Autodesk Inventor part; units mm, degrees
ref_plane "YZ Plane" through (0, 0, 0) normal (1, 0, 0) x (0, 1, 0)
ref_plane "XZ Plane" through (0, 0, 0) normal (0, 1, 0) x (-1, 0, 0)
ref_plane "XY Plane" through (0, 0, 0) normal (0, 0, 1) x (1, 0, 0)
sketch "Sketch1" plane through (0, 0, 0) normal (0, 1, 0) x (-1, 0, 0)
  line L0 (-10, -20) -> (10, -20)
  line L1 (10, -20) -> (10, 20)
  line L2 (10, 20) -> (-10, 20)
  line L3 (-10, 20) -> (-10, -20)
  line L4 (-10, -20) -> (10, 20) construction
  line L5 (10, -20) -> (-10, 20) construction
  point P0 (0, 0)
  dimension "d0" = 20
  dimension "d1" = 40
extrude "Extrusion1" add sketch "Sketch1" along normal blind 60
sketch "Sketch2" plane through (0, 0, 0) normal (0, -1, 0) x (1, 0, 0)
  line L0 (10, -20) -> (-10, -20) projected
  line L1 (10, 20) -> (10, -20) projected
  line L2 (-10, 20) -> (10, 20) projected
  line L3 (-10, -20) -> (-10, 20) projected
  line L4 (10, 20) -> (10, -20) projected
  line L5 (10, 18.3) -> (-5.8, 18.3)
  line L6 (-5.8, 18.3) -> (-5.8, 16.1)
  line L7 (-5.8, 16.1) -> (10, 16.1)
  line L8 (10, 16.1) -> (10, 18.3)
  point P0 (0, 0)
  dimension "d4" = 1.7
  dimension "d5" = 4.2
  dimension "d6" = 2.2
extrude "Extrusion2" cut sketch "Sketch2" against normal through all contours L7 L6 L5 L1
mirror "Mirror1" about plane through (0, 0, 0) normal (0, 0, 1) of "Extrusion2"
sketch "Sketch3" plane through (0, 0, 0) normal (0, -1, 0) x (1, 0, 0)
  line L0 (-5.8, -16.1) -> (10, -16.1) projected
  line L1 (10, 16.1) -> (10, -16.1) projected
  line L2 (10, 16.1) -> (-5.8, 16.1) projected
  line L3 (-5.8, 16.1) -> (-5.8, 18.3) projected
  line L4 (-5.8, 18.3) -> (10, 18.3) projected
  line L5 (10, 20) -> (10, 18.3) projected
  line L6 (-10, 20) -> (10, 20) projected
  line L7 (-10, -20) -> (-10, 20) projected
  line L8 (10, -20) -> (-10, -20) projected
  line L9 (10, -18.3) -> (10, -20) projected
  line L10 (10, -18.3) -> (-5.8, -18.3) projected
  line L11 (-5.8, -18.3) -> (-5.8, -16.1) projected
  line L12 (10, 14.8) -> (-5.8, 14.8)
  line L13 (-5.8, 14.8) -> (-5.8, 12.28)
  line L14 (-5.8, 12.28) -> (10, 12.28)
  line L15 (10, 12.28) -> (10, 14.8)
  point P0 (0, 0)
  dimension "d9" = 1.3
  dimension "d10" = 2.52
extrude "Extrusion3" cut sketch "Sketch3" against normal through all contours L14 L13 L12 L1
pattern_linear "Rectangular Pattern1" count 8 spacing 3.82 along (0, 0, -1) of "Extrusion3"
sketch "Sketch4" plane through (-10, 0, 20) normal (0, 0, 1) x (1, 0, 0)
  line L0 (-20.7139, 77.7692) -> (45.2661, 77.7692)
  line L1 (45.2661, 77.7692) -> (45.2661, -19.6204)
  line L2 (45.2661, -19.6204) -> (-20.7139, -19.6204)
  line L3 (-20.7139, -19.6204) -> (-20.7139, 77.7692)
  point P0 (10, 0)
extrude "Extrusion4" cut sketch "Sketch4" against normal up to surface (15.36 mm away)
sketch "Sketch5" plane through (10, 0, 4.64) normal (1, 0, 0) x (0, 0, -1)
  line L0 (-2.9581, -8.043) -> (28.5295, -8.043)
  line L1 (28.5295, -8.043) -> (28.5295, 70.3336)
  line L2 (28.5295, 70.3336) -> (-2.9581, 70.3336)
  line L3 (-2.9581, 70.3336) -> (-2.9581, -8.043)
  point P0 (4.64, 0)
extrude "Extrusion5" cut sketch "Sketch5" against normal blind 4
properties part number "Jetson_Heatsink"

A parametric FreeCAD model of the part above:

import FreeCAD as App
import Part
import Sketcher
Q = App.Units.Quantity

doc = App.newDocument("Part")
body = doc.addObject("PartDesign::Body", "Body")

# Sketch on XZ plane
sketch1 = body.newObject("Sketcher::SketchObject", "Sketch")
sketch1.AttachmentSupport = (doc.getObject("XZ_Plane"), [""])
sketch1.MapMode = "FlatFace"
sketch1.addGeometry(Part.LineSegment(App.Vector(10, 20, 0), App.Vector(10, -20, 0)), False)
sketch1.addGeometry(Part.LineSegment(App.Vector(10, -20, 0), App.Vector(-10, -20, 0)), False)
sketch1.addGeometry(Part.LineSegment(App.Vector(-10, -20, 0), App.Vector(-10, 20, 0)), False)
sketch1.addGeometry(Part.LineSegment(App.Vector(-10, 20, 0), App.Vector(10, 20, 0)), False)
sketch1.addConstraint(Sketcher.Constraint("Coincident", 0, 2, 1, 1))
sketch1.addConstraint(Sketcher.Constraint("Coincident", 1, 2, 2, 1))
sketch1.addConstraint(Sketcher.Constraint("Coincident", 2, 2, 3, 1))
sketch1.addConstraint(Sketcher.Constraint("Coincident", 3, 2, 0, 1))
sketch1.addConstraint(Sketcher.Constraint("Vertical", 0))
sketch1.addConstraint(Sketcher.Constraint("Horizontal", 1))
sketch1.addConstraint(Sketcher.Constraint("Vertical", 2))
sketch1.addConstraint(Sketcher.Constraint("Horizontal", 3))
sketch1.addConstraint(Sketcher.Constraint("Symmetric", 0, 2, 2, 2, -1, 1))
sketch1.addConstraint(Sketcher.Constraint("DistanceX", 1, 2, 1, 1, Q("20 mm")))
sketch1.addConstraint(Sketcher.Constraint("DistanceY", 0, 2, 0, 1, Q("40 mm")))
pad1 = body.newObject("PartDesign::Pad", "Pad")
pad1.Profile = sketch1
pad1.Length = 60
pad1.Reversed = True

# Sketch on XZ plane
sketch2 = body.newObject("Sketcher::SketchObject", "Sketch001")
sketch2.AttachmentSupport = (doc.getObject("XZ_Plane"), [""])
sketch2.MapMode = "FlatFace"
sketch2.addGeometry(Part.LineSegment(App.Vector(-5.8, 16.1, 0), App.Vector(10, 16.1, 0)), False)
sketch2.addGeometry(Part.LineSegment(App.Vector(10, 16.1, 0), App.Vector(10, 18.3, 0)), False)
sketch2.addGeometry(Part.LineSegment(App.Vector(10, 18.3, 0), App.Vector(-5.8, 18.3, 0)), False)
sketch2.addGeometry(Part.LineSegment(App.Vector(-5.8, 18.3, 0), App.Vector(-5.8, 16.1, 0)), False)
sketch2.addConstraint(Sketcher.Constraint("Coincident", 0, 2, 1, 1))
sketch2.addConstraint(Sketcher.Constraint("Coincident", 1, 2, 2, 1))
sketch2.addConstraint(Sketcher.Constraint("Coincident", 2, 2, 3, 1))
sketch2.addConstraint(Sketcher.Constraint("Coincident", 3, 2, 0, 1))
sketch2.addConstraint(Sketcher.Constraint("Horizontal", 0))
sketch2.addConstraint(Sketcher.Constraint("Vertical", 1))
sketch2.addConstraint(Sketcher.Constraint("Horizontal", 2))
sketch2.addConstraint(Sketcher.Constraint("Vertical", 3))
sketch2.addConstraint(Sketcher.Constraint("DistanceY", 1, 1, 1, 2, Q("2.2 mm")))
sketch2.addConstraint(Sketcher.Constraint("DistanceX", 0, 1, 0, 2, Q("15.8 mm")))
sketch2.addConstraint(Sketcher.Constraint("DistanceX", -1, 1, 0, 2, Q("10 mm")))
sketch2.addConstraint(Sketcher.Constraint("DistanceY", -1, 1, 0, 2, Q("16.1 mm")))
pocket1 = body.newObject("PartDesign::Pocket", "Pocket")
pocket1.Profile = sketch2
pocket1.Type = "ThroughAll"
doc.recompute()

mirrored = body.newObject("PartDesign::Mirrored", "Mirrored")
mirrored.Originals = [pocket1]
mirrored.MirrorPlane = (doc.getObject("XY_Plane"), [""])
body.Tip = mirrored

# Sketch on XZ plane
sketch3 = body.newObject("Sketcher::SketchObject", "Sketch002")
sketch3.AttachmentSupport = (doc.getObject("XZ_Plane"), [""])
sketch3.MapMode = "FlatFace"
sketch3.addGeometry(Part.LineSegment(App.Vector(-5.8, 12.28, 0), App.Vector(10, 12.28, 0)), False)
sketch3.addGeometry(Part.LineSegment(App.Vector(10, 12.28, 0), App.Vector(10, 14.8, 0)), False)
sketch3.addGeometry(Part.LineSegment(App.Vector(10, 14.8, 0), App.Vector(-5.8, 14.8, 0)), False)
sketch3.addGeometry(Part.LineSegment(App.Vector(-5.8, 14.8, 0), App.Vector(-5.8, 12.28, 0)), False)
sketch3.addConstraint(Sketcher.Constraint("Coincident", 0, 2, 1, 1))
sketch3.addConstraint(Sketcher.Constraint("Coincident", 1, 2, 2, 1))
sketch3.addConstraint(Sketcher.Constraint("Coincident", 2, 2, 3, 1))
sketch3.addConstraint(Sketcher.Constraint("Coincident", 3, 2, 0, 1))
sketch3.addConstraint(Sketcher.Constraint("Horizontal", 0))
sketch3.addConstraint(Sketcher.Constraint("Vertical", 1))
sketch3.addConstraint(Sketcher.Constraint("Horizontal", 2))
sketch3.addConstraint(Sketcher.Constraint("Vertical", 3))
sketch3.addConstraint(Sketcher.Constraint("DistanceY", 1, 1, 1, 2, Q("2.52 mm")))
sketch3.addConstraint(Sketcher.Constraint("DistanceX", 0, 1, 0, 2, Q("15.8 mm")))
sketch3.addConstraint(Sketcher.Constraint("DistanceX", -1, 1, 0, 2, Q("10 mm")))
sketch3.addConstraint(Sketcher.Constraint("DistanceY", -1, 1, 1, 2, Q("14.8 mm")))
pocket2 = body.newObject("PartDesign::Pocket", "Pocket001")
pocket2.Profile = sketch3
pocket2.Type = "ThroughAll"
doc.recompute()

linearpattern = body.newObject("PartDesign::LinearPattern", "LinearPattern")
linearpattern.Originals = [pocket2]
linearpattern.Direction = (doc.getObject("Z_Axis"), [""])
linearpattern.Mode = "offset"
linearpattern.Offset = 3.82
linearpattern.Occurrences = 8
linearpattern.Reversed = True
body.Tip = linearpattern

# Sketch on XY plane
sketch4 = body.newObject("Sketcher::SketchObject", "Sketch003")
sketch4.AttachmentSupport = (doc.getObject("XY_Plane"), [""])
sketch4.MapMode = "FlatFace"
sketch4.AttachmentOffset = App.Placement(App.Vector(0, 0, 20), App.Rotation())
sketch4.addGeometry(Part.LineSegment(App.Vector(35.2661, 77.7692, 0), App.Vector(-30.7139, 77.7692, 0)), False)
sketch4.addGeometry(Part.LineSegment(App.Vector(-30.7139, 77.7692, 0), App.Vector(-30.7139, -19.6204, 0)), False)
sketch4.addGeometry(Part.LineSegment(App.Vector(-30.7139, -19.6204, 0), App.Vector(35.2661, -19.6204, 0)), False)
sketch4.addGeometry(Part.LineSegment(App.Vector(35.2661, -19.6204, 0), App.Vector(35.2661, 77.7692, 0)), False)
sketch4.addConstraint(Sketcher.Constraint("Coincident", 0, 2, 1, 1))
sketch4.addConstraint(Sketcher.Constraint("Coincident", 1, 2, 2, 1))
sketch4.addConstraint(Sketcher.Constraint("Coincident", 2, 2, 3, 1))
sketch4.addConstraint(Sketcher.Constraint("Coincident", 3, 2, 0, 1))
sketch4.addConstraint(Sketcher.Constraint("Horizontal", 0))
sketch4.addConstraint(Sketcher.Constraint("Vertical", 1))
sketch4.addConstraint(Sketcher.Constraint("Horizontal", 2))
sketch4.addConstraint(Sketcher.Constraint("Vertical", 3))
sketch4.addConstraint(Sketcher.Constraint("DistanceX", 0, 2, 0, 1, Q("65.98 mm")))
sketch4.addConstraint(Sketcher.Constraint("DistanceY", 1, 2, 1, 1, Q("97.3896 mm")))
sketch4.addConstraint(Sketcher.Constraint("DistanceX", 0, 2, -1, 1, Q("30.714 mm")))
sketch4.addConstraint(Sketcher.Constraint("DistanceY", -1, 1, 0, 2, Q("77.7692 mm")))
pocket3 = body.newObject("PartDesign::Pocket", "Pocket002")
pocket3.Profile = sketch4
pocket3.Length = 15.36

# Sketch on YZ plane
sketch5 = body.newObject("Sketcher::SketchObject", "Sketch004")
sketch5.AttachmentSupport = (doc.getObject("YZ_Plane"), [""])
sketch5.MapMode = "FlatFace"
sketch5.AttachmentOffset = App.Placement(App.Vector(0, 0, 10), App.Rotation())
sketch5.addGeometry(Part.LineSegment(App.Vector(70.3336, 7.5981, 0), App.Vector(-8.043, 7.5981, 0)), False)
sketch5.addGeometry(Part.LineSegment(App.Vector(-8.043, 7.5981, 0), App.Vector(-8.043, -23.8895, 0)), False)
sketch5.addGeometry(Part.LineSegment(App.Vector(-8.043, -23.8895, 0), App.Vector(70.3336, -23.8895, 0)), False)
sketch5.addGeometry(Part.LineSegment(App.Vector(70.3336, -23.8895, 0), App.Vector(70.3336, 7.5981, 0)), False)
sketch5.addConstraint(Sketcher.Constraint("Coincident", 0, 2, 1, 1))
sketch5.addConstraint(Sketcher.Constraint("Coincident", 1, 2, 2, 1))
sketch5.addConstraint(Sketcher.Constraint("Coincident", 2, 2, 3, 1))
sketch5.addConstraint(Sketcher.Constraint("Coincident", 3, 2, 0, 1))
sketch5.addConstraint(Sketcher.Constraint("Horizontal", 0))
sketch5.addConstraint(Sketcher.Constraint("Vertical", 1))
sketch5.addConstraint(Sketcher.Constraint("Horizontal", 2))
sketch5.addConstraint(Sketcher.Constraint("Vertical", 3))
sketch5.addConstraint(Sketcher.Constraint("DistanceX", 0, 2, 0, 1, Q("78.3766 mm")))
sketch5.addConstraint(Sketcher.Constraint("DistanceY", 1, 2, 1, 1, Q("31.4876 mm")))
sketch5.addConstraint(Sketcher.Constraint("DistanceX", 0, 2, -1, 1, Q("8.043 mm")))
sketch5.addConstraint(Sketcher.Constraint("DistanceY", -1, 1, 0, 2, Q("7.598 mm")))
pocket4 = body.newObject("PartDesign::Pocket", "Pocket003")
pocket4.Profile = sketch5
pocket4.Length = 4

doc.recompute()
